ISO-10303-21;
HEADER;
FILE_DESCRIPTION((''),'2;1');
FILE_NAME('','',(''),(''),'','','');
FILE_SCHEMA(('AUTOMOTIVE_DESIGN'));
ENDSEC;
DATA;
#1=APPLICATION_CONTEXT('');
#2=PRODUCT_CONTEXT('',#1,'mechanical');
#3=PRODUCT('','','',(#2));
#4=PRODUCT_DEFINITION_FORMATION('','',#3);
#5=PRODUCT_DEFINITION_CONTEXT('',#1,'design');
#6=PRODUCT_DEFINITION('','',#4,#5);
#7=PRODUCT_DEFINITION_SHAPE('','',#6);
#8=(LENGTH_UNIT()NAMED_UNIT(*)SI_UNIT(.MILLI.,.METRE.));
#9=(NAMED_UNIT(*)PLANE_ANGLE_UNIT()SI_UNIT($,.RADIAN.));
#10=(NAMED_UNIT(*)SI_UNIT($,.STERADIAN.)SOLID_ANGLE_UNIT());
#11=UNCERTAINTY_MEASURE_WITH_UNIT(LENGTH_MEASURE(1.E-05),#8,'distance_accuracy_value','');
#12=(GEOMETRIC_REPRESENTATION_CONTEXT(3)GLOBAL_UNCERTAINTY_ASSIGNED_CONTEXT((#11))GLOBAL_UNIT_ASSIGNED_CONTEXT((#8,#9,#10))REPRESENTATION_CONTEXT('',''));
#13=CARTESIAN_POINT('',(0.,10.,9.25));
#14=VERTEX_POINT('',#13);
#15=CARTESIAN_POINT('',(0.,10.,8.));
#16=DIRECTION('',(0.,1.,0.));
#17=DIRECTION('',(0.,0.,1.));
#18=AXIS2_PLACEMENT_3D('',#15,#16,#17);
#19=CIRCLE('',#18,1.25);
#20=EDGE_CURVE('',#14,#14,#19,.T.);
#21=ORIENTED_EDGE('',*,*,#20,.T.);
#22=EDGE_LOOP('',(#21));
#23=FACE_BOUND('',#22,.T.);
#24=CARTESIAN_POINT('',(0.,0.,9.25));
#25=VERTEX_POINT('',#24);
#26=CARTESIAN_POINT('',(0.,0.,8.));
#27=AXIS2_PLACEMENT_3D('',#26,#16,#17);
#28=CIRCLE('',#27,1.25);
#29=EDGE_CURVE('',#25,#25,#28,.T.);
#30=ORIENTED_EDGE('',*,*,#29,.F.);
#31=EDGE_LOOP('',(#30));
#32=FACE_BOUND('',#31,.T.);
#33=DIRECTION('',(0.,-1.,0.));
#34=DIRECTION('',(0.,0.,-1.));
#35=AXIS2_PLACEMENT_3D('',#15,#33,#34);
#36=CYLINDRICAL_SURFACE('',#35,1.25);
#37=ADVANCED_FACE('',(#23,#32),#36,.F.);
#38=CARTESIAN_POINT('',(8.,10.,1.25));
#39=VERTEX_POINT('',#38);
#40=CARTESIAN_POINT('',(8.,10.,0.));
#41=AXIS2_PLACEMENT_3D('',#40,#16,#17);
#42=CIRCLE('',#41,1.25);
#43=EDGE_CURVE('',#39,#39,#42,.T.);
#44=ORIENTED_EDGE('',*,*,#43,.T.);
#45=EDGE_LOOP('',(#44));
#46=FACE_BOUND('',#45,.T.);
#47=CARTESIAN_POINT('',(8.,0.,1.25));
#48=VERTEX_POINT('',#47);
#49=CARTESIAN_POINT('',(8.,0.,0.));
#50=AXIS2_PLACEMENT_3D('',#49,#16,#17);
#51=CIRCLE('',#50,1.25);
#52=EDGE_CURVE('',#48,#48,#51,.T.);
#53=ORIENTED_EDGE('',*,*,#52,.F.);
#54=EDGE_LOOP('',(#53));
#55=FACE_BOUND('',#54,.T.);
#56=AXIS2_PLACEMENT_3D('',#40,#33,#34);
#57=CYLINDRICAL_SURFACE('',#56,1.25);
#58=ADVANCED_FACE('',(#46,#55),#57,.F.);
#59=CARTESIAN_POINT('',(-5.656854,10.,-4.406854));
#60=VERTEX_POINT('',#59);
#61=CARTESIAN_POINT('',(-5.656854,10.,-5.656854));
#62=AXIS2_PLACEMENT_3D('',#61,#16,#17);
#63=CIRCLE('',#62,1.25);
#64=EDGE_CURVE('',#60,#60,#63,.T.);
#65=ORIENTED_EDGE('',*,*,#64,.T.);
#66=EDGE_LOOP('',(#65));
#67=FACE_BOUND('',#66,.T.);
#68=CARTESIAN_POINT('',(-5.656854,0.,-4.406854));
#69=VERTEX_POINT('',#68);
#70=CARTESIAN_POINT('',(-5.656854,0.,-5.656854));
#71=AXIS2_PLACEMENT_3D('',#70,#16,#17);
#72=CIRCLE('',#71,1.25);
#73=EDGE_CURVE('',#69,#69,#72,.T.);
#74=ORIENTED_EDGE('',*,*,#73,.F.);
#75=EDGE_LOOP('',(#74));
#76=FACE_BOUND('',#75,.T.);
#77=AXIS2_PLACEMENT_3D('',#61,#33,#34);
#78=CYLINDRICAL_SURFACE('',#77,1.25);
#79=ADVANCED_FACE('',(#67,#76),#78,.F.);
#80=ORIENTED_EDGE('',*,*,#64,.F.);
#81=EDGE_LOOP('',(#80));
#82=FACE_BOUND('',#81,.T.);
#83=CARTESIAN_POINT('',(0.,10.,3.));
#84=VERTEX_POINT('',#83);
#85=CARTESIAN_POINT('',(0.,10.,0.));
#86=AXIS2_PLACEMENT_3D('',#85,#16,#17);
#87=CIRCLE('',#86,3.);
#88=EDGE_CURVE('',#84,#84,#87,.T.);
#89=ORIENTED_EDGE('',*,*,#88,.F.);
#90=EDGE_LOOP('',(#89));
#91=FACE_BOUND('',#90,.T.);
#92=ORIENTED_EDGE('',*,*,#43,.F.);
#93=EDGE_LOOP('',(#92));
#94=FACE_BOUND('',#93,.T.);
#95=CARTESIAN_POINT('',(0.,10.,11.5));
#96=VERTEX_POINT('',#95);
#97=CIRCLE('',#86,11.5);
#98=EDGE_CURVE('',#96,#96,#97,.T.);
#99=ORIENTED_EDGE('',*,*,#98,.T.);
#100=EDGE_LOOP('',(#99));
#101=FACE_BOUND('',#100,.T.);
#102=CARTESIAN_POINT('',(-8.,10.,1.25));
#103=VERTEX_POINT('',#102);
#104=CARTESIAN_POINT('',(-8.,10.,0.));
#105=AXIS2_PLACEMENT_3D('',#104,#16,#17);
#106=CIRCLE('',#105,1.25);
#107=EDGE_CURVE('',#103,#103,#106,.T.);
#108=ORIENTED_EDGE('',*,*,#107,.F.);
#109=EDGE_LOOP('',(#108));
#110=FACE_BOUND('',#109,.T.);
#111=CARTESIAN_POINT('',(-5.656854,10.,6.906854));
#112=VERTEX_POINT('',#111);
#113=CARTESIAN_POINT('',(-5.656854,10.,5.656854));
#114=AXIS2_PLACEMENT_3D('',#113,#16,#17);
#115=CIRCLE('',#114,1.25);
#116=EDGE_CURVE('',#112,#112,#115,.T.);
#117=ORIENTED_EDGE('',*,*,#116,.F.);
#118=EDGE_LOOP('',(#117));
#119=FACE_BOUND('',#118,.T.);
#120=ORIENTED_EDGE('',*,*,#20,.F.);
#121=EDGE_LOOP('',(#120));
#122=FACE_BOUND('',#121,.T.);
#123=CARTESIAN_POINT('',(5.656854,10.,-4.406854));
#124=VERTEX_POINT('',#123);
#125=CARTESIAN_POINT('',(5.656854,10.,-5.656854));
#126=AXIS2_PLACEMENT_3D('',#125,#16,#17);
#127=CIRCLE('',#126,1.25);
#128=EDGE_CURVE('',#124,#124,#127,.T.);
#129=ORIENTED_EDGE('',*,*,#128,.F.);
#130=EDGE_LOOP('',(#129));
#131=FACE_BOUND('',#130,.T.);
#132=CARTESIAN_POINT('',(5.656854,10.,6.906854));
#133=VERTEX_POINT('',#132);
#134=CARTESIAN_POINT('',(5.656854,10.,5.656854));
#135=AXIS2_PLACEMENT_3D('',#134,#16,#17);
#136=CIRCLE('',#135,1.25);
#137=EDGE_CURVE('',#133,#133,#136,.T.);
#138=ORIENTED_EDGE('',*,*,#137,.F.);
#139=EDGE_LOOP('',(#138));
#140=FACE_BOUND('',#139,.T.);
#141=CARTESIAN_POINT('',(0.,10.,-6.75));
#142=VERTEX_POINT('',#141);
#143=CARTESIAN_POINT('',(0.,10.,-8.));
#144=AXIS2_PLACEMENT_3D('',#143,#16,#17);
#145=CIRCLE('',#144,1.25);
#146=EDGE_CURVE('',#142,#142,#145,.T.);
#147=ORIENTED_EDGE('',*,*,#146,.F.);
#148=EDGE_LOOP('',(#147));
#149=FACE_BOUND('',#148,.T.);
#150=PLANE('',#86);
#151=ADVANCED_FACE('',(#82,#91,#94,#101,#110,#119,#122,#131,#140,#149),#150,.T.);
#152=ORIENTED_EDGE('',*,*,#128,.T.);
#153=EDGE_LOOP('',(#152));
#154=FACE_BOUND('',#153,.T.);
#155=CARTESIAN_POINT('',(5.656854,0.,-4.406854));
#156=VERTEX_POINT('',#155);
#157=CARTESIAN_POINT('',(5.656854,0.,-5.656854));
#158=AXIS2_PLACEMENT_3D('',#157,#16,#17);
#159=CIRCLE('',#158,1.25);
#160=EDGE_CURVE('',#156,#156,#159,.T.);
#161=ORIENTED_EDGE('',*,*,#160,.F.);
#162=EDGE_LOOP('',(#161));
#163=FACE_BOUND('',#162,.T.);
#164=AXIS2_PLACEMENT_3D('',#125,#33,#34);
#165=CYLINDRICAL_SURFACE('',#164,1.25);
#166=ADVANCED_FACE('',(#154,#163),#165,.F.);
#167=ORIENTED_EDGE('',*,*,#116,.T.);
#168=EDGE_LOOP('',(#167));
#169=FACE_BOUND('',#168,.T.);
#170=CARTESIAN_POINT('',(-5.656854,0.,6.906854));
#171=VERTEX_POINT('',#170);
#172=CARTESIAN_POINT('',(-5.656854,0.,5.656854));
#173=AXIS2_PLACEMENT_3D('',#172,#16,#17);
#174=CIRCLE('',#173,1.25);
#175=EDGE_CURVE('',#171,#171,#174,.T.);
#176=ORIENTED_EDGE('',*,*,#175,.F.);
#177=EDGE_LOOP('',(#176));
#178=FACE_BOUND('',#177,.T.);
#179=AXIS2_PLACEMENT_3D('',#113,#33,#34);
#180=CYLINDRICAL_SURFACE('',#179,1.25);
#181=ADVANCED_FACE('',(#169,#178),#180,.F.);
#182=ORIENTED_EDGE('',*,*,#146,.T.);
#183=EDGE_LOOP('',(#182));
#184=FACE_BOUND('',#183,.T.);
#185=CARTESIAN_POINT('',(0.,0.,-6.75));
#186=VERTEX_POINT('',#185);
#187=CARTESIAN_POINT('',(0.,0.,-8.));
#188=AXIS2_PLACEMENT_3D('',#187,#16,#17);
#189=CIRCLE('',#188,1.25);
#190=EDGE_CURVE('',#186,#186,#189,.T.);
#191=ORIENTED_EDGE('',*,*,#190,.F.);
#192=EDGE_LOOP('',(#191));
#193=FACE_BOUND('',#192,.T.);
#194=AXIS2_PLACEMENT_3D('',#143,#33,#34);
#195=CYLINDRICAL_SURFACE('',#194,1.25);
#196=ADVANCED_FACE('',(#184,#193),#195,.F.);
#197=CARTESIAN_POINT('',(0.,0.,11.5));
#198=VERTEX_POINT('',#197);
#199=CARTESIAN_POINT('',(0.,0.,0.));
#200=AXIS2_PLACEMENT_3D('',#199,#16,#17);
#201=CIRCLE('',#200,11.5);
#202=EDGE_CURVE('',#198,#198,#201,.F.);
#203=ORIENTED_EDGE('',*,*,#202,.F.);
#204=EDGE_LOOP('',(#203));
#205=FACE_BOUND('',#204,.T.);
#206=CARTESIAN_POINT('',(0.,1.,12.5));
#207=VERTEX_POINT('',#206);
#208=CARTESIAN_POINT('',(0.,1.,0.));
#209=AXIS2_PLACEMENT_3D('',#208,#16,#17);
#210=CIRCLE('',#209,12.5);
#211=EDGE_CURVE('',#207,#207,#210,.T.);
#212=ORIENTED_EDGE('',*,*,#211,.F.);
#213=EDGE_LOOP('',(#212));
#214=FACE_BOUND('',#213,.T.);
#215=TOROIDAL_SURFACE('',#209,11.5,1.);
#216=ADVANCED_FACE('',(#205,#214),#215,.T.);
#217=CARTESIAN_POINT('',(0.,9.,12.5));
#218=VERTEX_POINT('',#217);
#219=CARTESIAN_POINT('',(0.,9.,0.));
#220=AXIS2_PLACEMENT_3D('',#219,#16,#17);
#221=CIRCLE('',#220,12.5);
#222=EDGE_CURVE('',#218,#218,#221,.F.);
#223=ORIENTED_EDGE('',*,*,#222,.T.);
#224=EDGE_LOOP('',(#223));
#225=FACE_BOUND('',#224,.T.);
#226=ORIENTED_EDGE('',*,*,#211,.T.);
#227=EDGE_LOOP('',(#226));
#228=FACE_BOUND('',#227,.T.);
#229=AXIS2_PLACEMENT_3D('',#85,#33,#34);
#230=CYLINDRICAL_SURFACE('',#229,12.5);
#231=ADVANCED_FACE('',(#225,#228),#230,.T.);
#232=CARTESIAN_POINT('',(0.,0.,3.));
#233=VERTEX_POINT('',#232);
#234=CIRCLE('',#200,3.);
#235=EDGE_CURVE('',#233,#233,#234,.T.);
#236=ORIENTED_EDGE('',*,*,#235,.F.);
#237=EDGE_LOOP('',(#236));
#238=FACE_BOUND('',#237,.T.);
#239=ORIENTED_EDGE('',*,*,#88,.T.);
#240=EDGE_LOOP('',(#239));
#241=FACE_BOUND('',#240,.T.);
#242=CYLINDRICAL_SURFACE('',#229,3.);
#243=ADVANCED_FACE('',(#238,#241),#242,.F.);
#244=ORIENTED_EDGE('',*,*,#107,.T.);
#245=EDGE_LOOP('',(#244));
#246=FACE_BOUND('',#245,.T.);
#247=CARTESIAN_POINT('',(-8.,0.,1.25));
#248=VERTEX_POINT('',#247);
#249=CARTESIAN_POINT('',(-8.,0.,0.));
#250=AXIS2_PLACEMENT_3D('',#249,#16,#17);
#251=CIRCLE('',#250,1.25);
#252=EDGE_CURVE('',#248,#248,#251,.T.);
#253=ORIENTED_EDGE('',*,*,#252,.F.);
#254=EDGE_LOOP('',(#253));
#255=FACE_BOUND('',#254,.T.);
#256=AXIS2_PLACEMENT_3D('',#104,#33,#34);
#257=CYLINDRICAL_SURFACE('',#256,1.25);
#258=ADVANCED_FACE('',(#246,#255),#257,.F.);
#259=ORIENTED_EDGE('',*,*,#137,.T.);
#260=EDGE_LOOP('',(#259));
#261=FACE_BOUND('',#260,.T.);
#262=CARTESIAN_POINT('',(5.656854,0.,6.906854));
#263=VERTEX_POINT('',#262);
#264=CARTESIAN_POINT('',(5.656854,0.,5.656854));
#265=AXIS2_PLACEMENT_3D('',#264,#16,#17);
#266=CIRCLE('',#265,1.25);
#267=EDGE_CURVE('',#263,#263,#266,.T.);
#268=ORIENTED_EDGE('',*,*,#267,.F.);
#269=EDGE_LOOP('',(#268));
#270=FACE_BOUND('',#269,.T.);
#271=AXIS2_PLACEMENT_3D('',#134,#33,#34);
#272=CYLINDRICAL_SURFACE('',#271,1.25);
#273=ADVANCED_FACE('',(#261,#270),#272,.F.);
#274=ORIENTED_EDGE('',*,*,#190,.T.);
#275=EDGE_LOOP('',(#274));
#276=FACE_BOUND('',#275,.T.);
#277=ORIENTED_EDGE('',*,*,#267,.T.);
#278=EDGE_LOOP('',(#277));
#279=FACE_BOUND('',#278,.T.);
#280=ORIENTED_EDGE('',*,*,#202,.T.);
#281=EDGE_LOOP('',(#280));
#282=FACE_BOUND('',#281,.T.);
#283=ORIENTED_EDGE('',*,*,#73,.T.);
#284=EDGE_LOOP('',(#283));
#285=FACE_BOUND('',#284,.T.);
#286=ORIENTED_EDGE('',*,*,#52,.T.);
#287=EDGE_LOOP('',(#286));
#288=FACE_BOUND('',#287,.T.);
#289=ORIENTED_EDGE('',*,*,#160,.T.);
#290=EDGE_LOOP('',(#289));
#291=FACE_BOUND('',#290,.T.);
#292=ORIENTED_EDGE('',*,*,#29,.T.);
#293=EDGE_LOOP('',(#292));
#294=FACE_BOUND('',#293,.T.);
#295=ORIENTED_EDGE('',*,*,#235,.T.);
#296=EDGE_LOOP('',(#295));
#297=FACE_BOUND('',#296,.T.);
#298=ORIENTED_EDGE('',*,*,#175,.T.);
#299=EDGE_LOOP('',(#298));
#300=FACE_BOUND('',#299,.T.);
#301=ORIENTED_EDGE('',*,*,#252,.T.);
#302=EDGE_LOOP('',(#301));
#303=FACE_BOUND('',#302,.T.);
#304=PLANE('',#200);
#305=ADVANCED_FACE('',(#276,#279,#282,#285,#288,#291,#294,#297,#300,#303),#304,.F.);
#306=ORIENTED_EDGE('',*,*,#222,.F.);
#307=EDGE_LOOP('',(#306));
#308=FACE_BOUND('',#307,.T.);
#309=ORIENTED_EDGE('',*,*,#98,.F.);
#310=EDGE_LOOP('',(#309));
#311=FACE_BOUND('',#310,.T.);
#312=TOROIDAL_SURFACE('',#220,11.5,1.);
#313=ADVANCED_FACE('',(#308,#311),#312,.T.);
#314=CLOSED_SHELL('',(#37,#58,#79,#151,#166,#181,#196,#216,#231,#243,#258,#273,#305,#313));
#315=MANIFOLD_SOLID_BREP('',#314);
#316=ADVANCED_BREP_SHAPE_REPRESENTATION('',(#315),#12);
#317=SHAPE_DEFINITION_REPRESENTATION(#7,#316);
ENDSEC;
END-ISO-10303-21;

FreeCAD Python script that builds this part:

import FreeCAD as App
import Part
import Sketcher


def edges_at(feature, points):
    """Names of the edges that pass closest to the given points."""
    edges = feature.Shape.Edges
    near = lambda p: min(range(len(edges)), key=lambda i: edges[i].distToShape(Part.Vertex(*p))[0])
    return sorted({f"Edge{near(p) + 1}" for p in points})

doc = App.newDocument("Part")
body = doc.addObject("PartDesign::Body", "Body")

# Sketch on XZ plane
sketch1 = body.newObject("Sketcher::SketchObject", "Sketch")
sketch1.AttachmentSupport = (doc.getObject("XZ_Plane"), [""])
sketch1.MapMode = "FlatFace"
sketch1.addGeometry([
    Part.Circle(App.Vector(0, 0, 0), App.Vector(0, 0, 1), 12.5),  # 0
    Part.Circle(App.Vector(-5.7, -5.7, 0), App.Vector(0, 0, 1), 1.2),  # 1
    Part.Circle(App.Vector(0, -8, 0), App.Vector(0, 0, 1), 1.2),  # 2
    Part.Circle(App.Vector(-8, 0, 0), App.Vector(0, 0, 1), 1.2),  # 3
    Part.Circle(App.Vector(-5.7, 5.7, 0), App.Vector(0, 0, 1), 1.2),  # 4
    Part.Circle(App.Vector(5.7, -5.7, 0), App.Vector(0, 0, 1), 1.2),  # 5
    Part.Circle(App.Vector(8, 0, 0), App.Vector(0, 0, 1), 1.2),  # 6
    Part.Circle(App.Vector(0, 0, 0), App.Vector(0, 0, 1), 3),  # 7
    Part.Circle(App.Vector(0, 8, 0), App.Vector(0, 0, 1), 1.2),  # 8
    Part.Circle(App.Vector(5.7, 5.7, 0), App.Vector(0, 0, 1), 1.2),  # 9
], False)
sketch1.addConstraint([
    Sketcher.Constraint("Coincident", 0, 3, -1, 1),
    Sketcher.Constraint("Coincident", 7, 3, -1, 1),
    Sketcher.Constraint("Equal", 1, 2),
    Sketcher.Constraint("Equal", 2, 3),
    Sketcher.Constraint("Equal", 3, 4),
    Sketcher.Constraint("Equal", 4, 5),
    Sketcher.Constraint("Equal", 5, 6),
    Sketcher.Constraint("Equal", 6, 8),
    Sketcher.Constraint("Equal", 8, 9),
    Sketcher.Constraint("Symmetric", 4, 3, 5, 3, -1, 1),
    Sketcher.Constraint("Symmetric", 3, 3, 6, 3, -1, 1),
    Sketcher.Constraint("Symmetric", 2, 3, 8, 3, -1, 1),
    Sketcher.Constraint("Symmetric", 1, 3, 9, 3, -1, 1),
    Sketcher.Constraint("Symmetric", 1, 3, 5, 3, -2),
    Sketcher.Constraint("PointOnObject", 2, 3, -2),
    Sketcher.Constraint("PointOnObject", 3, 3, -1),
    Sketcher.Constraint("Diameter", 0, 25.0),
    Sketcher.Constraint("Diameter", 7, 6.0),
    Sketcher.Constraint("Diameter", 1, 2.5),
    Sketcher.Constraint("DistanceY", 2, 3, -1, 1, 8.0),
    Sketcher.Constraint("DistanceX", 3, 3, -1, 1, 8.0),
    Sketcher.Constraint("DistanceY", 1, 3, 4, 3, 11.313708),
    Sketcher.Constraint("DistanceX", 1, 3, 5, 3, 11.313708),
])
pad1 = body.newObject("PartDesign::Pad", "Pad")
pad1.Profile = sketch1
pad1.Length = 10
pad1.Reversed = True
doc.recompute()

fillet = body.newObject("PartDesign::Fillet", "Fillet")
fillet.Base = (pad1, edges_at(pad1, [(0, 0, -12.5), (0, 10, -12.5)]))
fillet.Radius = 1

doc.recompute()
